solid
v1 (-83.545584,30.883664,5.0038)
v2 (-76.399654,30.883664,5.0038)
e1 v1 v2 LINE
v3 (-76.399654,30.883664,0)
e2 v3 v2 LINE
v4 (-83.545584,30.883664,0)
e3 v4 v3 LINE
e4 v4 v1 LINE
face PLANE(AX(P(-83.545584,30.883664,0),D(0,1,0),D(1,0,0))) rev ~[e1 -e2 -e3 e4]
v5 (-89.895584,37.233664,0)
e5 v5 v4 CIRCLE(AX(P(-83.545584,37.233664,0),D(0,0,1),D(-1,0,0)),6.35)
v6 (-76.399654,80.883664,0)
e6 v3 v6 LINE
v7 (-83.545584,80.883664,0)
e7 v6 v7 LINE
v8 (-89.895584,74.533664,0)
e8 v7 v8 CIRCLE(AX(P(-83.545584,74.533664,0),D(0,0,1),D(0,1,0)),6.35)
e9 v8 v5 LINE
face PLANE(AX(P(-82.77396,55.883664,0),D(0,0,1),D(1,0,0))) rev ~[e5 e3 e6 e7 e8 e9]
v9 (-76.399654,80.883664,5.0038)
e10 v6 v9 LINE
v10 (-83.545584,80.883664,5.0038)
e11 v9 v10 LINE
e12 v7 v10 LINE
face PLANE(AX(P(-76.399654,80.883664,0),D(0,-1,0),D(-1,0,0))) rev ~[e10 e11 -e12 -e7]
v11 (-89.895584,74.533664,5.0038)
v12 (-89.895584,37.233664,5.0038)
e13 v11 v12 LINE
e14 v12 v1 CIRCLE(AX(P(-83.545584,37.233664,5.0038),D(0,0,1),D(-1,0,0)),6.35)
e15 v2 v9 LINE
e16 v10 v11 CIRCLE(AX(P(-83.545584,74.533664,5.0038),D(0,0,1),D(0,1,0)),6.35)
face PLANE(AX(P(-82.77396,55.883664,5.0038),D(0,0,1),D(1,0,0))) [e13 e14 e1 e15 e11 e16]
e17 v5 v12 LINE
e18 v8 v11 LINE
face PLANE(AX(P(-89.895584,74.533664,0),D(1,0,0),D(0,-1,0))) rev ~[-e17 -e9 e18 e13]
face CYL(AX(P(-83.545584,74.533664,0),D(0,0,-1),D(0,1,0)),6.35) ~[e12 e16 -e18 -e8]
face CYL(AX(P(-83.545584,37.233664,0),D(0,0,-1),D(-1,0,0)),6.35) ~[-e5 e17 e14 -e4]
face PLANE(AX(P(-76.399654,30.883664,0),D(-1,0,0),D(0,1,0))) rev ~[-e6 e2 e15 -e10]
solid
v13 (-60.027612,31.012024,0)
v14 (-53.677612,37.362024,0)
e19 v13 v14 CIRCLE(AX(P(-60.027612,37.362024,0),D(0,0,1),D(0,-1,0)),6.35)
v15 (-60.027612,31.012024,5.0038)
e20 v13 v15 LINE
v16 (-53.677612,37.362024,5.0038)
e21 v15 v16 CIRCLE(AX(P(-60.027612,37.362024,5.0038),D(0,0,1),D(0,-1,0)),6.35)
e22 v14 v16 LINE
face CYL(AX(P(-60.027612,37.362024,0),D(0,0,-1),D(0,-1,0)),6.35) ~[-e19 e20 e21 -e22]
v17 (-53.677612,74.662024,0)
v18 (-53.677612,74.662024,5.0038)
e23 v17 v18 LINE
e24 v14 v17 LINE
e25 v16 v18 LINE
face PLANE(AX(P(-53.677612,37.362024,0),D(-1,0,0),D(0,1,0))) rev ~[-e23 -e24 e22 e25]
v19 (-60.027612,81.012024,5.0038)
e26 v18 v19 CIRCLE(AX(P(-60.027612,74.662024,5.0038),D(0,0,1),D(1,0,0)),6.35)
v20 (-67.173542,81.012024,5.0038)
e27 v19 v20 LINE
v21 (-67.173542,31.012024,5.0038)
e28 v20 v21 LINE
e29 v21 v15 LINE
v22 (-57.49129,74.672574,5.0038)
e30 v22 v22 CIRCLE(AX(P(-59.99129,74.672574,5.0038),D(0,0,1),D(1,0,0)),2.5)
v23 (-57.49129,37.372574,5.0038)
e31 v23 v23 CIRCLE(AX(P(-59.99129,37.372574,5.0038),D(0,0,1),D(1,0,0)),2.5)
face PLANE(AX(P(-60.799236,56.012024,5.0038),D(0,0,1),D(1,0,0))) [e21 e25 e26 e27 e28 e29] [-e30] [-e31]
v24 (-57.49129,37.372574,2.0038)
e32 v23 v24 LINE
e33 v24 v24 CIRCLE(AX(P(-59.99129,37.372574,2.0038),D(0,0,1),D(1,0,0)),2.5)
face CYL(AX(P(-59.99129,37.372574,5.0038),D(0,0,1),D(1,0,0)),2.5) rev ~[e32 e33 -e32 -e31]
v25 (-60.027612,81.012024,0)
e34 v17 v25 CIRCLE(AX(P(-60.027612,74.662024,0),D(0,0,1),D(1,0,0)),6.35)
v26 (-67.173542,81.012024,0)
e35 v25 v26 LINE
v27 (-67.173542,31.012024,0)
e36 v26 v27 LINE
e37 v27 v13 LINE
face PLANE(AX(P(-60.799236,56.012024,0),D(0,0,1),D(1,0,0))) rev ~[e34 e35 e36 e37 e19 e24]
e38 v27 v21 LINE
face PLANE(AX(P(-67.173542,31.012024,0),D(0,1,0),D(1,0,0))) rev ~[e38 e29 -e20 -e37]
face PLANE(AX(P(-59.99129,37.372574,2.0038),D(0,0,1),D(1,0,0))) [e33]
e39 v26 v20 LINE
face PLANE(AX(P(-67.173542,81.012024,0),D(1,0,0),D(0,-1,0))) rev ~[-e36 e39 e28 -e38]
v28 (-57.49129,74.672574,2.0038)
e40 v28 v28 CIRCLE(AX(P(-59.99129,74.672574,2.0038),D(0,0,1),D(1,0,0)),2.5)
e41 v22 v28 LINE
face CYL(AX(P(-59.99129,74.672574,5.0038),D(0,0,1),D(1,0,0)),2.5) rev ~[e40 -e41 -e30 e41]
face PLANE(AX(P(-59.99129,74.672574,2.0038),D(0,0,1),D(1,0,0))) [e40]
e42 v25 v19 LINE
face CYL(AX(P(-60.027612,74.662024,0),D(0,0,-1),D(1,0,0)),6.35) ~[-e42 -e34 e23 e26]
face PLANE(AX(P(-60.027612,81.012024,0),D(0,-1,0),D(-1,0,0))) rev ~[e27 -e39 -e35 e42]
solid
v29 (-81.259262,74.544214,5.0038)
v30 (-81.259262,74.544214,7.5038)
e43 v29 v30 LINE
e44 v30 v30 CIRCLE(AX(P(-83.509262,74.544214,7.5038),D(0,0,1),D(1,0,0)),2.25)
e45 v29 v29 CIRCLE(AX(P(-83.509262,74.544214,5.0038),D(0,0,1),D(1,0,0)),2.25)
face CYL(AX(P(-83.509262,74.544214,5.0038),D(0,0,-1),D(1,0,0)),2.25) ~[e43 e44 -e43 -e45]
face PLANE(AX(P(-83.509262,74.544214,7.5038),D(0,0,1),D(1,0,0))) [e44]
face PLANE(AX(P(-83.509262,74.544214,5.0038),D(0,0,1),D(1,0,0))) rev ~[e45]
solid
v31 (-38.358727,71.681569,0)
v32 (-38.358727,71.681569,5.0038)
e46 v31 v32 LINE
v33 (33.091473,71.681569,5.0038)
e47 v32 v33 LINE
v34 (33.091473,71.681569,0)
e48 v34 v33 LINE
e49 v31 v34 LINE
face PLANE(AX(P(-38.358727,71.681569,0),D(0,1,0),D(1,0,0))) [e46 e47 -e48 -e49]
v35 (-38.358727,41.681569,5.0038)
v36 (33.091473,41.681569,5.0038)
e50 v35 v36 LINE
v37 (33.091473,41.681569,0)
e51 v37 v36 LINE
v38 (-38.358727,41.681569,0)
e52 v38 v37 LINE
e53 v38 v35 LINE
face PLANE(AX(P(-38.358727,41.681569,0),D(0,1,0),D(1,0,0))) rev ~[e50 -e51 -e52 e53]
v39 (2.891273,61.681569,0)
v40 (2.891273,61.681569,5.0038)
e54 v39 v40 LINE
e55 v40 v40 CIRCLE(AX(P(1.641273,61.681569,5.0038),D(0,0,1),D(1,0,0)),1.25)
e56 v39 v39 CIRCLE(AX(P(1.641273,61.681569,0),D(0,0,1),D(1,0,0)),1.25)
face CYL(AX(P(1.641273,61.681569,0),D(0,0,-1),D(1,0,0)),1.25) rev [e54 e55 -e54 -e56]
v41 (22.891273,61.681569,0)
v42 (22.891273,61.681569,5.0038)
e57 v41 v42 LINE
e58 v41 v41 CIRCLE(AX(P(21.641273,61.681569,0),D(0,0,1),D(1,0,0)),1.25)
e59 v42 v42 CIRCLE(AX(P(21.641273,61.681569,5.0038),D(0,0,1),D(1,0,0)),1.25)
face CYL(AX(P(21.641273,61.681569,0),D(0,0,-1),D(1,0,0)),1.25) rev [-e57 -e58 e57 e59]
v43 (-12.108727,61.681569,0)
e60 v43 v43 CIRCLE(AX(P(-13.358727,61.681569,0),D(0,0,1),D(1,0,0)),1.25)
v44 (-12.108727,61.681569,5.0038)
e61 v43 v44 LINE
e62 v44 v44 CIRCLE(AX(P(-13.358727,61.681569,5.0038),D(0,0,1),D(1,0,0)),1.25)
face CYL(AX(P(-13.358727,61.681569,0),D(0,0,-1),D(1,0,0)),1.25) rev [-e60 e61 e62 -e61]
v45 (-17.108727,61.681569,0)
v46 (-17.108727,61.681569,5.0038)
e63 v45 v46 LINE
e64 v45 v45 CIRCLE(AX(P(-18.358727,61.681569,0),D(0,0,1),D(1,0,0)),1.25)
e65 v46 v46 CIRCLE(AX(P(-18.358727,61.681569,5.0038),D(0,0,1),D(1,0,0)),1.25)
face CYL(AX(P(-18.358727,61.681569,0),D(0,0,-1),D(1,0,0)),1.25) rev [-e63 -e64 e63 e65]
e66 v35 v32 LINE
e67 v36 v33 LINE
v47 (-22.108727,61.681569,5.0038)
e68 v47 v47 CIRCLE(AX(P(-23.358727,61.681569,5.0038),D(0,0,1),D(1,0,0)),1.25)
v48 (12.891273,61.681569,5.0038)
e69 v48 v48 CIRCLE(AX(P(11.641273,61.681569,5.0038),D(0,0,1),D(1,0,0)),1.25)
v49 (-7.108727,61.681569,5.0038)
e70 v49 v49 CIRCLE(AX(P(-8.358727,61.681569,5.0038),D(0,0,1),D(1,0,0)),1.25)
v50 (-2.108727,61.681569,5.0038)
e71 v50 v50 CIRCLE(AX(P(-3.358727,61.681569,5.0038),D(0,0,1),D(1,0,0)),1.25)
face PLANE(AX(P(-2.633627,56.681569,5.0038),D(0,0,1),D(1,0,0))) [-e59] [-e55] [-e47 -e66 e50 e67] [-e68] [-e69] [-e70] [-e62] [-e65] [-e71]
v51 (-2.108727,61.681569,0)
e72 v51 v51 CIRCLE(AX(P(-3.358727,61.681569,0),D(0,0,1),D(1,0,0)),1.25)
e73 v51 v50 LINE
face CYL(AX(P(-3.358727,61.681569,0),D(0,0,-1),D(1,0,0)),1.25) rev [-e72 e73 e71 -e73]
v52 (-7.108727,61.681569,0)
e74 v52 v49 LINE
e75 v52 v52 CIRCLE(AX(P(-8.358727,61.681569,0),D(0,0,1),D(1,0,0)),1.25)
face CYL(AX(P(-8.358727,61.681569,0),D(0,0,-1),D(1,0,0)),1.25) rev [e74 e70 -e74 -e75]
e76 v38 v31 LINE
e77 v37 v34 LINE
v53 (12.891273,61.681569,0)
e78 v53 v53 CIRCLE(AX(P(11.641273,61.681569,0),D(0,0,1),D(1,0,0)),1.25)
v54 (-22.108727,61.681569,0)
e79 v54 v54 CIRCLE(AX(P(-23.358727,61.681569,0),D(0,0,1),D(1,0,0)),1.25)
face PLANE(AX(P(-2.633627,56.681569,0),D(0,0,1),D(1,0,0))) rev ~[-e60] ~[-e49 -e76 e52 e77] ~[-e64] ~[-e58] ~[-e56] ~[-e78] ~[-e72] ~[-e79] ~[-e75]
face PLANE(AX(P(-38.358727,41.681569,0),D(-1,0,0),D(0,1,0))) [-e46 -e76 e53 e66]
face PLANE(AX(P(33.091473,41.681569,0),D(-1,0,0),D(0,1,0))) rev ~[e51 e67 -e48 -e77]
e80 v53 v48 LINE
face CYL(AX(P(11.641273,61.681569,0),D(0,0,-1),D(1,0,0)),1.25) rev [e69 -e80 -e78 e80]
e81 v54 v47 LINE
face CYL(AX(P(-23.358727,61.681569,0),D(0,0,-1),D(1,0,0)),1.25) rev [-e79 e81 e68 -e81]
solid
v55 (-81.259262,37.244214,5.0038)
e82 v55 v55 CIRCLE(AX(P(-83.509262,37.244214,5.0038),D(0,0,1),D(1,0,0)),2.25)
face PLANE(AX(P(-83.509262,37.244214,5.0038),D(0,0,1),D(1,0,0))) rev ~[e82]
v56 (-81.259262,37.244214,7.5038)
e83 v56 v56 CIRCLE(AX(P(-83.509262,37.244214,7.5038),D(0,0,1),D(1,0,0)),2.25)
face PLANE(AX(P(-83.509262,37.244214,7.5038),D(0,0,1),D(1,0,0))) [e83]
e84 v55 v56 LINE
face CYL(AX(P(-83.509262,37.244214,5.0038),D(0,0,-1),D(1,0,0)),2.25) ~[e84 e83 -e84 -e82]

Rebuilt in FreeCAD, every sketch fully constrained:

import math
import FreeCAD as App
import Part
import Sketcher


def add_polygon(sketch, points):
    """Adds a closed chain of lines whose ends are joined by coincident constraints."""
    first, n = sketch.GeometryCount, len(points)
    for a, b in zip(points, points[1:] + points[:1]):
        sketch.addGeometry(Part.LineSegment(App.Vector(*a, 0), App.Vector(*b, 0)), False)
    for i in range(n):
        sketch.addConstraint(Sketcher.Constraint("Coincident", first + i, 2, first + (i + 1) % n, 1))

doc = App.newDocument("Part")
params = doc.addObject("Spreadsheet::Sheet", "Params")
for row, (alias, value) in enumerate([
    ("sketch1_height", "50 mm"),
    ("sketch1_radius", "6.35 mm"),
    ("pad1_length", "5.0038 mm"),
    ("sketch2_height", "50 mm"),
    ("sketch2_radius", "6.35 mm"),
    ("pad2_length", "5.0038 mm"),
    ("sketch3_diameter", "5 mm"),
    ("pocket1_length", "3 mm"),
    ("sketch4_diameter", "2.5 mm"),
    ("sketch4_height", "30 mm"),
    ("pad3_length", "5.0038 mm"),
    ("sketch5_diameter", "4.5 mm"),
    ("pad4_length", "2.5 mm"),
    ("sketch6_diameter", "4.5 mm"),
    ("pad5_length", "2.5 mm"),
], start=1):
    params.set(f"A{row}", alias)
    params.set(f"B{row}", "=" + value)
    params.setAlias(f"B{row}", alias)

body = doc.addObject("PartDesign::Body", "Body")

# Sketch on XY plane
sketch1 = doc.addObject("Sketcher::SketchObject", "Sketch")
body.addObject(sketch1)
sketch1.AttachmentSupport = (doc.XY_Plane, [""])
sketch1.MapMode = "FlatFace"
sketch1.addGeometry(Part.LineSegment(App.Vector(-76, 81, 0), App.Vector(-84, 81, 0)), False)
sketch1.addGeometry(Part.ArcOfCircle(Part.Circle(App.Vector(-84, 75, 0), App.Vector(0, 0, 1), 6), math.radians(90), math.radians(180)), False)
sketch1.addGeometry(Part.LineSegment(App.Vector(-90, 75, 0), App.Vector(-90, 37, 0)), False)
sketch1.addGeometry(Part.ArcOfCircle(Part.Circle(App.Vector(-84, 37, 0), App.Vector(0, 0, 1), 6), math.radians(180), math.radians(270)), False)
sketch1.addGeometry(Part.LineSegment(App.Vector(-84, 31, 0), App.Vector(-76, 31, 0)), False)
sketch1.addGeometry(Part.LineSegment(App.Vector(-76, 31, 0), App.Vector(-76, 81, 0)), False)
sketch1.addConstraint(Sketcher.Constraint("Tangent", 0, 2, 1, 1))
sketch1.addConstraint(Sketcher.Constraint("Tangent", 1, 2, 2, 1))
sketch1.addConstraint(Sketcher.Constraint("Tangent", 2, 2, 3, 1))
sketch1.addConstraint(Sketcher.Constraint("Tangent", 3, 2, 4, 1))
sketch1.addConstraint(Sketcher.Constraint("Coincident", 4, 2, 5, 1))
sketch1.addConstraint(Sketcher.Constraint("Coincident", 5, 2, 0, 1))
sketch1.addConstraint(Sketcher.Constraint("Horizontal", 0))
sketch1.addConstraint(Sketcher.Constraint("Vertical", 2))
sketch1.addConstraint(Sketcher.Constraint("Horizontal", 4))
sketch1.addConstraint(Sketcher.Constraint("Vertical", 5))
sketch1.addConstraint(Sketcher.Constraint("Equal", 1, 3))
sketch1.addConstraint(Sketcher.Constraint("DistanceY", 5, 1, 5, 2, 50.0))
sketch1.addConstraint(Sketcher.Constraint("Radius", 1, 6.35))
sketch1.addConstraint(Sketcher.Constraint("DistanceX", 0, 2, 0, 1, 7.14593))
sketch1.addConstraint(Sketcher.Constraint("DistanceX", 1, 3, -1, 1, 83.545584))
sketch1.addConstraint(Sketcher.Constraint("DistanceY", -1, 1, 1, 3, 74.533664))
sketch1.setExpression("Constraints[11]", "Params.sketch1_height")
sketch1.setExpression("Constraints[12]", "Params.sketch1_radius")
pad1 = doc.addObject("PartDesign::Pad", "Pad")
body.addObject(pad1)
pad1.Profile = sketch1
pad1.setExpression("Length", "Params.pad1_length")
body2 = doc.addObject("PartDesign::Body", "Body001")

# Sketch on XY plane
sketch2 = doc.addObject("Sketcher::SketchObject", "Sketch001")
body2.addObject(sketch2)
sketch2.AttachmentSupport = (doc.getObject("XY_Plane001"), [""])
sketch2.MapMode = "FlatFace"
sketch2.addGeometry(Part.LineSegment(App.Vector(-67, 31, 0), App.Vector(-60, 31, 0)), False)
sketch2.addGeometry(Part.ArcOfCircle(Part.Circle(App.Vector(-60, 37, 0), App.Vector(0, 0, 1), 6), math.radians(-90), math.radians(0)), False)
sketch2.addGeometry(Part.LineSegment(App.Vector(-54, 37, 0), App.Vector(-54, 75, 0)), False)
sketch2.addGeometry(Part.ArcOfCircle(Part.Circle(App.Vector(-60, 75, 0), App.Vector(0, 0, 1), 6), math.radians(0), math.radians(90)), False)
sketch2.addGeometry(Part.LineSegment(App.Vector(-60, 81, 0), App.Vector(-67, 81, 0)), False)
sketch2.addGeometry(Part.LineSegment(App.Vector(-67, 81, 0), App.Vector(-67, 31, 0)), False)
sketch2.addConstraint(Sketcher.Constraint("Tangent", 0, 2, 1, 1))
sketch2.addConstraint(Sketcher.Constraint("Tangent", 1, 2, 2, 1))
sketch2.addConstraint(Sketcher.Constraint("Tangent", 2, 2, 3, 1))
sketch2.addConstraint(Sketcher.Constraint("Tangent", 3, 2, 4, 1))
sketch2.addConstraint(Sketcher.Constraint("Coincident", 4, 2, 5, 1))
sketch2.addConstraint(Sketcher.Constraint("Coincident", 5, 2, 0, 1))
sketch2.addConstraint(Sketcher.Constraint("Horizontal", 0))
sketch2.addConstraint(Sketcher.Constraint("Vertical", 2))
sketch2.addConstraint(Sketcher.Constraint("Horizontal", 4))
sketch2.addConstraint(Sketcher.Constraint("Vertical", 5))
sketch2.addConstraint(Sketcher.Constraint("Equal", 1, 3))
sketch2.addConstraint(Sketcher.Constraint("DistanceY", 5, 2, 5, 1, 50.0))
sketch2.addConstraint(Sketcher.Constraint("Radius", 1, 6.35))
sketch2.addConstraint(Sketcher.Constraint("DistanceX", 0, 1, 0, 2, 7.14593))
sketch2.addConstraint(Sketcher.Constraint("DistanceX", 4, 2, -1, 1, 67.173542))
sketch2.addConstraint(Sketcher.Constraint("DistanceY", -1, 1, 1, 3, 37.362024))
sketch2.setExpression("Constraints[11]", "Params.sketch2_height")
sketch2.setExpression("Constraints[12]", "Params.sketch2_radius")
pad2 = doc.addObject("PartDesign::Pad", "Pad001")
body2.addObject(pad2)
pad2.Profile = sketch2
pad2.setExpression("Length", "Params.pad2_length")

# Sketch on XY plane
sketch3 = doc.addObject("Sketcher::SketchObject", "Sketch002")
body2.addObject(sketch3)
sketch3.AttachmentSupport = (doc.getObject("XY_Plane001"), [""])
sketch3.MapMode = "FlatFace"
sketch3.AttachmentOffset = App.Placement(App.Vector(0, 0, 5.0038), App.Rotation())
sketch3.addGeometry(Part.Circle(App.Vector(-60, 74.7, 0), App.Vector(0, 0, 1), 2.5), False)
sketch3.addGeometry(Part.Circle(App.Vector(-60, 37.4, 0), App.Vector(0, 0, 1), 2.5), False)
sketch3.addConstraint(Sketcher.Constraint("Equal", 0, 1))
sketch3.addConstraint(Sketcher.Constraint("Vertical", 0, 3, 1, 3))
sketch3.addConstraint(Sketcher.Constraint("Diameter", 0, 5.0))
sketch3.addConstraint(Sketcher.Constraint("DistanceY", 1, 3, 0, 3, 37.3))
sketch3.addConstraint(Sketcher.Constraint("DistanceX", 0, 3, -1, 1, 59.99129))
sketch3.addConstraint(Sketcher.Constraint("DistanceY", -1, 1, 0, 3, 74.672574))
sketch3.setExpression("Constraints[2]", "Params.sketch3_diameter")
pocket1 = doc.addObject("PartDesign::Pocket", "Pocket")
body2.addObject(pocket1)
pocket1.Profile = sketch3
pocket1.setExpression("Length", "Params.pocket1_length")
body3 = doc.addObject("PartDesign::Body", "Body002")

# Sketch on XY plane
sketch4 = doc.addObject("Sketcher::SketchObject", "Sketch003")
body3.addObject(sketch4)
sketch4.AttachmentSupport = (doc.getObject("XY_Plane002"), [""])
sketch4.MapMode = "FlatFace"
add_polygon(sketch4, [(-38.4, 71.7), (-38.4, 41.7), (33.1, 41.7), (33.1, 71.7)])  # lines 0-3
sketch4.addGeometry(Part.Circle(App.Vector(-23.4, 61.7, 0), App.Vector(0, 0, 1), 1.2), False)  # 4
sketch4.addGeometry(Part.Circle(App.Vector(-18.4, 61.7, 0), App.Vector(0, 0, 1), 1.2), False)  # 5
sketch4.addGeometry(Part.Circle(App.Vector(-13.4, 61.7, 0), App.Vector(0, 0, 1), 1.2), False)  # 6
sketch4.addGeometry(Part.Circle(App.Vector(-8.4, 61.7, 0), App.Vector(0, 0, 1), 1.2), False)  # 7
sketch4.addGeometry(Part.Circle(App.Vector(-3.4, 61.7, 0), App.Vector(0, 0, 1), 1.2), False)  # 8
sketch4.addGeometry(Part.Circle(App.Vector(1.6, 61.7, 0), App.Vector(0, 0, 1), 1.2), False)  # 9
sketch4.addGeometry(Part.Circle(App.Vector(11.6, 61.7, 0), App.Vector(0, 0, 1), 1.2), False)  # 10
sketch4.addGeometry(Part.Circle(App.Vector(21.6, 61.7, 0), App.Vector(0, 0, 1), 1.2), False)  # 11
sketch4.addConstraint(Sketcher.Constraint("Vertical", 0))
sketch4.addConstraint(Sketcher.Constraint("Horizontal", 1))
sketch4.addConstraint(Sketcher.Constraint("Vertical", 2))
sketch4.addConstraint(Sketcher.Constraint("Horizontal", 3))
sketch4.addConstraint(Sketcher.Constraint("Equal", 4, 5))
sketch4.addConstraint(Sketcher.Constraint("Equal", 5, 6))
sketch4.addConstraint(Sketcher.Constraint("Equal", 6, 7))
sketch4.addConstraint(Sketcher.Constraint("Equal", 7, 8))
sketch4.addConstraint(Sketcher.Constraint("Equal", 8, 9))
sketch4.addConstraint(Sketcher.Constraint("Equal", 9, 10))
sketch4.addConstraint(Sketcher.Constraint("Equal", 10, 11))
sketch4.addConstraint(Sketcher.Constraint("Horizontal", 4, 3, 5, 3))
sketch4.addConstraint(Sketcher.Constraint("Horizontal", 5, 3, 6, 3))
sketch4.addConstraint(Sketcher.Constraint("Horizontal", 6, 3, 7, 3))
sketch4.addConstraint(Sketcher.Constraint("Horizontal", 7, 3, 8, 3))
sketch4.addConstraint(Sketcher.Constraint("Horizontal", 8, 3, 9, 3))
sketch4.addConstraint(Sketcher.Constraint("Horizontal", 9, 3, 10, 3))
sketch4.addConstraint(Sketcher.Constraint("Horizontal", 10, 3, 11, 3))
sketch4.addConstraint(Sketcher.Constraint("Diameter", 4, 2.5))
sketch4.addConstraint(Sketcher.Constraint("DistanceY", 0, 2, 0, 1, 30.0))
sketch4.addConstraint(Sketcher.Constraint("DistanceX", 4, 3, 5, 3, 5.0))
sketch4.addConstraint(Sketcher.Constraint("DistanceX", 5, 3, 6, 3, 5.0))
sketch4.addConstraint(Sketcher.Constraint("DistanceX", 6, 3, 7, 3, 5.0))
sketch4.addConstraint(Sketcher.Constraint("DistanceX", 7, 3, 8, 3, 5.0))
sketch4.addConstraint(Sketcher.Constraint("DistanceX", 8, 3, 9, 3, 5.0))
sketch4.addConstraint(Sketcher.Constraint("DistanceX", 9, 3, 10, 3, 10.0))
sketch4.addConstraint(Sketcher.Constraint("DistanceX", 10, 3, 11, 3, 10.0))
sketch4.addConstraint(Sketcher.Constraint("DistanceX", 0, 2, 4, 3, 15.0))
sketch4.addConstraint(Sketcher.Constraint("DistanceY", 0, 2, 4, 3, 20.0))
sketch4.addConstraint(Sketcher.Constraint("DistanceX", 1, 1, 1, 2, 71.4502))
sketch4.addConstraint(Sketcher.Constraint("DistanceY", -1, 1, 4, 3, 61.681569))
sketch4.addConstraint(Sketcher.Constraint("DistanceX", 4, 3, -1, 1, 23.358727))
sketch4.setExpression("Constraints[22]", "Params.sketch4_diameter")
sketch4.setExpression("Constraints[23]", "Params.sketch4_height")
pad3 = doc.addObject("PartDesign::Pad", "Pad002")
body3.addObject(pad3)
pad3.Profile = sketch4
pad3.setExpression("Length", "Params.pad3_length")
body4 = doc.addObject("PartDesign::Body", "Body003")

# Sketch on XY plane
sketch5 = doc.addObject("Sketcher::SketchObject", "Sketch004")
body4.addObject(sketch5)
sketch5.AttachmentSupport = (doc.getObject("XY_Plane003"), [""])
sketch5.MapMode = "FlatFace"
sketch5.AttachmentOffset = App.Placement(App.Vector(0, 0, 5.0038), App.Rotation())
sketch5.addGeometry(Part.Circle(App.Vector(-83.5, 74.5, 0), App.Vector(0, 0, 1), 2.2), False)
sketch5.addConstraint(Sketcher.Constraint("Diameter", 0, 4.5))
sketch5.addConstraint(Sketcher.Constraint("DistanceX", 0, 3, -1, 1, 83.509262))
sketch5.addConstraint(Sketcher.Constraint("DistanceY", -1, 1, 0, 3, 74.544214))
sketch5.setExpression("Constraints[0]", "Params.sketch5_diameter")
pad4 = doc.addObject("PartDesign::Pad", "Pad003")
body4.addObject(pad4)
pad4.Profile = sketch5
pad4.setExpression("Length", "Params.pad4_length")
body5 = doc.addObject("PartDesign::Body", "Body004")

# Sketch on XY plane
sketch6 = doc.addObject("Sketcher::SketchObject", "Sketch005")
body5.addObject(sketch6)
sketch6.AttachmentSupport = (doc.getObject("XY_Plane004"), [""])
sketch6.MapMode = "FlatFace"
sketch6.AttachmentOffset = App.Placement(App.Vector(0, 0, 5.0038), App.Rotation())
sketch6.addGeometry(Part.Circle(App.Vector(-83.5, 37.2, 0), App.Vector(0, 0, 1), 2.2), False)
sketch6.addConstraint(Sketcher.Constraint("Diameter", 0, 4.5))
sketch6.addConstraint(Sketcher.Constraint("DistanceX", 0, 3, -1, 1, 83.509262))
sketch6.addConstraint(Sketcher.Constraint("DistanceY", -1, 1, 0, 3, 37.244214))
sketch6.setExpression("Constraints[0]", "Params.sketch6_diameter")
pad5 = doc.addObject("PartDesign::Pad", "Pad004")
body5.addObject(pad5)
pad5.Profile = sketch6
pad5.setExpression("Length", "Params.pad5_length")

doc.recompute()
